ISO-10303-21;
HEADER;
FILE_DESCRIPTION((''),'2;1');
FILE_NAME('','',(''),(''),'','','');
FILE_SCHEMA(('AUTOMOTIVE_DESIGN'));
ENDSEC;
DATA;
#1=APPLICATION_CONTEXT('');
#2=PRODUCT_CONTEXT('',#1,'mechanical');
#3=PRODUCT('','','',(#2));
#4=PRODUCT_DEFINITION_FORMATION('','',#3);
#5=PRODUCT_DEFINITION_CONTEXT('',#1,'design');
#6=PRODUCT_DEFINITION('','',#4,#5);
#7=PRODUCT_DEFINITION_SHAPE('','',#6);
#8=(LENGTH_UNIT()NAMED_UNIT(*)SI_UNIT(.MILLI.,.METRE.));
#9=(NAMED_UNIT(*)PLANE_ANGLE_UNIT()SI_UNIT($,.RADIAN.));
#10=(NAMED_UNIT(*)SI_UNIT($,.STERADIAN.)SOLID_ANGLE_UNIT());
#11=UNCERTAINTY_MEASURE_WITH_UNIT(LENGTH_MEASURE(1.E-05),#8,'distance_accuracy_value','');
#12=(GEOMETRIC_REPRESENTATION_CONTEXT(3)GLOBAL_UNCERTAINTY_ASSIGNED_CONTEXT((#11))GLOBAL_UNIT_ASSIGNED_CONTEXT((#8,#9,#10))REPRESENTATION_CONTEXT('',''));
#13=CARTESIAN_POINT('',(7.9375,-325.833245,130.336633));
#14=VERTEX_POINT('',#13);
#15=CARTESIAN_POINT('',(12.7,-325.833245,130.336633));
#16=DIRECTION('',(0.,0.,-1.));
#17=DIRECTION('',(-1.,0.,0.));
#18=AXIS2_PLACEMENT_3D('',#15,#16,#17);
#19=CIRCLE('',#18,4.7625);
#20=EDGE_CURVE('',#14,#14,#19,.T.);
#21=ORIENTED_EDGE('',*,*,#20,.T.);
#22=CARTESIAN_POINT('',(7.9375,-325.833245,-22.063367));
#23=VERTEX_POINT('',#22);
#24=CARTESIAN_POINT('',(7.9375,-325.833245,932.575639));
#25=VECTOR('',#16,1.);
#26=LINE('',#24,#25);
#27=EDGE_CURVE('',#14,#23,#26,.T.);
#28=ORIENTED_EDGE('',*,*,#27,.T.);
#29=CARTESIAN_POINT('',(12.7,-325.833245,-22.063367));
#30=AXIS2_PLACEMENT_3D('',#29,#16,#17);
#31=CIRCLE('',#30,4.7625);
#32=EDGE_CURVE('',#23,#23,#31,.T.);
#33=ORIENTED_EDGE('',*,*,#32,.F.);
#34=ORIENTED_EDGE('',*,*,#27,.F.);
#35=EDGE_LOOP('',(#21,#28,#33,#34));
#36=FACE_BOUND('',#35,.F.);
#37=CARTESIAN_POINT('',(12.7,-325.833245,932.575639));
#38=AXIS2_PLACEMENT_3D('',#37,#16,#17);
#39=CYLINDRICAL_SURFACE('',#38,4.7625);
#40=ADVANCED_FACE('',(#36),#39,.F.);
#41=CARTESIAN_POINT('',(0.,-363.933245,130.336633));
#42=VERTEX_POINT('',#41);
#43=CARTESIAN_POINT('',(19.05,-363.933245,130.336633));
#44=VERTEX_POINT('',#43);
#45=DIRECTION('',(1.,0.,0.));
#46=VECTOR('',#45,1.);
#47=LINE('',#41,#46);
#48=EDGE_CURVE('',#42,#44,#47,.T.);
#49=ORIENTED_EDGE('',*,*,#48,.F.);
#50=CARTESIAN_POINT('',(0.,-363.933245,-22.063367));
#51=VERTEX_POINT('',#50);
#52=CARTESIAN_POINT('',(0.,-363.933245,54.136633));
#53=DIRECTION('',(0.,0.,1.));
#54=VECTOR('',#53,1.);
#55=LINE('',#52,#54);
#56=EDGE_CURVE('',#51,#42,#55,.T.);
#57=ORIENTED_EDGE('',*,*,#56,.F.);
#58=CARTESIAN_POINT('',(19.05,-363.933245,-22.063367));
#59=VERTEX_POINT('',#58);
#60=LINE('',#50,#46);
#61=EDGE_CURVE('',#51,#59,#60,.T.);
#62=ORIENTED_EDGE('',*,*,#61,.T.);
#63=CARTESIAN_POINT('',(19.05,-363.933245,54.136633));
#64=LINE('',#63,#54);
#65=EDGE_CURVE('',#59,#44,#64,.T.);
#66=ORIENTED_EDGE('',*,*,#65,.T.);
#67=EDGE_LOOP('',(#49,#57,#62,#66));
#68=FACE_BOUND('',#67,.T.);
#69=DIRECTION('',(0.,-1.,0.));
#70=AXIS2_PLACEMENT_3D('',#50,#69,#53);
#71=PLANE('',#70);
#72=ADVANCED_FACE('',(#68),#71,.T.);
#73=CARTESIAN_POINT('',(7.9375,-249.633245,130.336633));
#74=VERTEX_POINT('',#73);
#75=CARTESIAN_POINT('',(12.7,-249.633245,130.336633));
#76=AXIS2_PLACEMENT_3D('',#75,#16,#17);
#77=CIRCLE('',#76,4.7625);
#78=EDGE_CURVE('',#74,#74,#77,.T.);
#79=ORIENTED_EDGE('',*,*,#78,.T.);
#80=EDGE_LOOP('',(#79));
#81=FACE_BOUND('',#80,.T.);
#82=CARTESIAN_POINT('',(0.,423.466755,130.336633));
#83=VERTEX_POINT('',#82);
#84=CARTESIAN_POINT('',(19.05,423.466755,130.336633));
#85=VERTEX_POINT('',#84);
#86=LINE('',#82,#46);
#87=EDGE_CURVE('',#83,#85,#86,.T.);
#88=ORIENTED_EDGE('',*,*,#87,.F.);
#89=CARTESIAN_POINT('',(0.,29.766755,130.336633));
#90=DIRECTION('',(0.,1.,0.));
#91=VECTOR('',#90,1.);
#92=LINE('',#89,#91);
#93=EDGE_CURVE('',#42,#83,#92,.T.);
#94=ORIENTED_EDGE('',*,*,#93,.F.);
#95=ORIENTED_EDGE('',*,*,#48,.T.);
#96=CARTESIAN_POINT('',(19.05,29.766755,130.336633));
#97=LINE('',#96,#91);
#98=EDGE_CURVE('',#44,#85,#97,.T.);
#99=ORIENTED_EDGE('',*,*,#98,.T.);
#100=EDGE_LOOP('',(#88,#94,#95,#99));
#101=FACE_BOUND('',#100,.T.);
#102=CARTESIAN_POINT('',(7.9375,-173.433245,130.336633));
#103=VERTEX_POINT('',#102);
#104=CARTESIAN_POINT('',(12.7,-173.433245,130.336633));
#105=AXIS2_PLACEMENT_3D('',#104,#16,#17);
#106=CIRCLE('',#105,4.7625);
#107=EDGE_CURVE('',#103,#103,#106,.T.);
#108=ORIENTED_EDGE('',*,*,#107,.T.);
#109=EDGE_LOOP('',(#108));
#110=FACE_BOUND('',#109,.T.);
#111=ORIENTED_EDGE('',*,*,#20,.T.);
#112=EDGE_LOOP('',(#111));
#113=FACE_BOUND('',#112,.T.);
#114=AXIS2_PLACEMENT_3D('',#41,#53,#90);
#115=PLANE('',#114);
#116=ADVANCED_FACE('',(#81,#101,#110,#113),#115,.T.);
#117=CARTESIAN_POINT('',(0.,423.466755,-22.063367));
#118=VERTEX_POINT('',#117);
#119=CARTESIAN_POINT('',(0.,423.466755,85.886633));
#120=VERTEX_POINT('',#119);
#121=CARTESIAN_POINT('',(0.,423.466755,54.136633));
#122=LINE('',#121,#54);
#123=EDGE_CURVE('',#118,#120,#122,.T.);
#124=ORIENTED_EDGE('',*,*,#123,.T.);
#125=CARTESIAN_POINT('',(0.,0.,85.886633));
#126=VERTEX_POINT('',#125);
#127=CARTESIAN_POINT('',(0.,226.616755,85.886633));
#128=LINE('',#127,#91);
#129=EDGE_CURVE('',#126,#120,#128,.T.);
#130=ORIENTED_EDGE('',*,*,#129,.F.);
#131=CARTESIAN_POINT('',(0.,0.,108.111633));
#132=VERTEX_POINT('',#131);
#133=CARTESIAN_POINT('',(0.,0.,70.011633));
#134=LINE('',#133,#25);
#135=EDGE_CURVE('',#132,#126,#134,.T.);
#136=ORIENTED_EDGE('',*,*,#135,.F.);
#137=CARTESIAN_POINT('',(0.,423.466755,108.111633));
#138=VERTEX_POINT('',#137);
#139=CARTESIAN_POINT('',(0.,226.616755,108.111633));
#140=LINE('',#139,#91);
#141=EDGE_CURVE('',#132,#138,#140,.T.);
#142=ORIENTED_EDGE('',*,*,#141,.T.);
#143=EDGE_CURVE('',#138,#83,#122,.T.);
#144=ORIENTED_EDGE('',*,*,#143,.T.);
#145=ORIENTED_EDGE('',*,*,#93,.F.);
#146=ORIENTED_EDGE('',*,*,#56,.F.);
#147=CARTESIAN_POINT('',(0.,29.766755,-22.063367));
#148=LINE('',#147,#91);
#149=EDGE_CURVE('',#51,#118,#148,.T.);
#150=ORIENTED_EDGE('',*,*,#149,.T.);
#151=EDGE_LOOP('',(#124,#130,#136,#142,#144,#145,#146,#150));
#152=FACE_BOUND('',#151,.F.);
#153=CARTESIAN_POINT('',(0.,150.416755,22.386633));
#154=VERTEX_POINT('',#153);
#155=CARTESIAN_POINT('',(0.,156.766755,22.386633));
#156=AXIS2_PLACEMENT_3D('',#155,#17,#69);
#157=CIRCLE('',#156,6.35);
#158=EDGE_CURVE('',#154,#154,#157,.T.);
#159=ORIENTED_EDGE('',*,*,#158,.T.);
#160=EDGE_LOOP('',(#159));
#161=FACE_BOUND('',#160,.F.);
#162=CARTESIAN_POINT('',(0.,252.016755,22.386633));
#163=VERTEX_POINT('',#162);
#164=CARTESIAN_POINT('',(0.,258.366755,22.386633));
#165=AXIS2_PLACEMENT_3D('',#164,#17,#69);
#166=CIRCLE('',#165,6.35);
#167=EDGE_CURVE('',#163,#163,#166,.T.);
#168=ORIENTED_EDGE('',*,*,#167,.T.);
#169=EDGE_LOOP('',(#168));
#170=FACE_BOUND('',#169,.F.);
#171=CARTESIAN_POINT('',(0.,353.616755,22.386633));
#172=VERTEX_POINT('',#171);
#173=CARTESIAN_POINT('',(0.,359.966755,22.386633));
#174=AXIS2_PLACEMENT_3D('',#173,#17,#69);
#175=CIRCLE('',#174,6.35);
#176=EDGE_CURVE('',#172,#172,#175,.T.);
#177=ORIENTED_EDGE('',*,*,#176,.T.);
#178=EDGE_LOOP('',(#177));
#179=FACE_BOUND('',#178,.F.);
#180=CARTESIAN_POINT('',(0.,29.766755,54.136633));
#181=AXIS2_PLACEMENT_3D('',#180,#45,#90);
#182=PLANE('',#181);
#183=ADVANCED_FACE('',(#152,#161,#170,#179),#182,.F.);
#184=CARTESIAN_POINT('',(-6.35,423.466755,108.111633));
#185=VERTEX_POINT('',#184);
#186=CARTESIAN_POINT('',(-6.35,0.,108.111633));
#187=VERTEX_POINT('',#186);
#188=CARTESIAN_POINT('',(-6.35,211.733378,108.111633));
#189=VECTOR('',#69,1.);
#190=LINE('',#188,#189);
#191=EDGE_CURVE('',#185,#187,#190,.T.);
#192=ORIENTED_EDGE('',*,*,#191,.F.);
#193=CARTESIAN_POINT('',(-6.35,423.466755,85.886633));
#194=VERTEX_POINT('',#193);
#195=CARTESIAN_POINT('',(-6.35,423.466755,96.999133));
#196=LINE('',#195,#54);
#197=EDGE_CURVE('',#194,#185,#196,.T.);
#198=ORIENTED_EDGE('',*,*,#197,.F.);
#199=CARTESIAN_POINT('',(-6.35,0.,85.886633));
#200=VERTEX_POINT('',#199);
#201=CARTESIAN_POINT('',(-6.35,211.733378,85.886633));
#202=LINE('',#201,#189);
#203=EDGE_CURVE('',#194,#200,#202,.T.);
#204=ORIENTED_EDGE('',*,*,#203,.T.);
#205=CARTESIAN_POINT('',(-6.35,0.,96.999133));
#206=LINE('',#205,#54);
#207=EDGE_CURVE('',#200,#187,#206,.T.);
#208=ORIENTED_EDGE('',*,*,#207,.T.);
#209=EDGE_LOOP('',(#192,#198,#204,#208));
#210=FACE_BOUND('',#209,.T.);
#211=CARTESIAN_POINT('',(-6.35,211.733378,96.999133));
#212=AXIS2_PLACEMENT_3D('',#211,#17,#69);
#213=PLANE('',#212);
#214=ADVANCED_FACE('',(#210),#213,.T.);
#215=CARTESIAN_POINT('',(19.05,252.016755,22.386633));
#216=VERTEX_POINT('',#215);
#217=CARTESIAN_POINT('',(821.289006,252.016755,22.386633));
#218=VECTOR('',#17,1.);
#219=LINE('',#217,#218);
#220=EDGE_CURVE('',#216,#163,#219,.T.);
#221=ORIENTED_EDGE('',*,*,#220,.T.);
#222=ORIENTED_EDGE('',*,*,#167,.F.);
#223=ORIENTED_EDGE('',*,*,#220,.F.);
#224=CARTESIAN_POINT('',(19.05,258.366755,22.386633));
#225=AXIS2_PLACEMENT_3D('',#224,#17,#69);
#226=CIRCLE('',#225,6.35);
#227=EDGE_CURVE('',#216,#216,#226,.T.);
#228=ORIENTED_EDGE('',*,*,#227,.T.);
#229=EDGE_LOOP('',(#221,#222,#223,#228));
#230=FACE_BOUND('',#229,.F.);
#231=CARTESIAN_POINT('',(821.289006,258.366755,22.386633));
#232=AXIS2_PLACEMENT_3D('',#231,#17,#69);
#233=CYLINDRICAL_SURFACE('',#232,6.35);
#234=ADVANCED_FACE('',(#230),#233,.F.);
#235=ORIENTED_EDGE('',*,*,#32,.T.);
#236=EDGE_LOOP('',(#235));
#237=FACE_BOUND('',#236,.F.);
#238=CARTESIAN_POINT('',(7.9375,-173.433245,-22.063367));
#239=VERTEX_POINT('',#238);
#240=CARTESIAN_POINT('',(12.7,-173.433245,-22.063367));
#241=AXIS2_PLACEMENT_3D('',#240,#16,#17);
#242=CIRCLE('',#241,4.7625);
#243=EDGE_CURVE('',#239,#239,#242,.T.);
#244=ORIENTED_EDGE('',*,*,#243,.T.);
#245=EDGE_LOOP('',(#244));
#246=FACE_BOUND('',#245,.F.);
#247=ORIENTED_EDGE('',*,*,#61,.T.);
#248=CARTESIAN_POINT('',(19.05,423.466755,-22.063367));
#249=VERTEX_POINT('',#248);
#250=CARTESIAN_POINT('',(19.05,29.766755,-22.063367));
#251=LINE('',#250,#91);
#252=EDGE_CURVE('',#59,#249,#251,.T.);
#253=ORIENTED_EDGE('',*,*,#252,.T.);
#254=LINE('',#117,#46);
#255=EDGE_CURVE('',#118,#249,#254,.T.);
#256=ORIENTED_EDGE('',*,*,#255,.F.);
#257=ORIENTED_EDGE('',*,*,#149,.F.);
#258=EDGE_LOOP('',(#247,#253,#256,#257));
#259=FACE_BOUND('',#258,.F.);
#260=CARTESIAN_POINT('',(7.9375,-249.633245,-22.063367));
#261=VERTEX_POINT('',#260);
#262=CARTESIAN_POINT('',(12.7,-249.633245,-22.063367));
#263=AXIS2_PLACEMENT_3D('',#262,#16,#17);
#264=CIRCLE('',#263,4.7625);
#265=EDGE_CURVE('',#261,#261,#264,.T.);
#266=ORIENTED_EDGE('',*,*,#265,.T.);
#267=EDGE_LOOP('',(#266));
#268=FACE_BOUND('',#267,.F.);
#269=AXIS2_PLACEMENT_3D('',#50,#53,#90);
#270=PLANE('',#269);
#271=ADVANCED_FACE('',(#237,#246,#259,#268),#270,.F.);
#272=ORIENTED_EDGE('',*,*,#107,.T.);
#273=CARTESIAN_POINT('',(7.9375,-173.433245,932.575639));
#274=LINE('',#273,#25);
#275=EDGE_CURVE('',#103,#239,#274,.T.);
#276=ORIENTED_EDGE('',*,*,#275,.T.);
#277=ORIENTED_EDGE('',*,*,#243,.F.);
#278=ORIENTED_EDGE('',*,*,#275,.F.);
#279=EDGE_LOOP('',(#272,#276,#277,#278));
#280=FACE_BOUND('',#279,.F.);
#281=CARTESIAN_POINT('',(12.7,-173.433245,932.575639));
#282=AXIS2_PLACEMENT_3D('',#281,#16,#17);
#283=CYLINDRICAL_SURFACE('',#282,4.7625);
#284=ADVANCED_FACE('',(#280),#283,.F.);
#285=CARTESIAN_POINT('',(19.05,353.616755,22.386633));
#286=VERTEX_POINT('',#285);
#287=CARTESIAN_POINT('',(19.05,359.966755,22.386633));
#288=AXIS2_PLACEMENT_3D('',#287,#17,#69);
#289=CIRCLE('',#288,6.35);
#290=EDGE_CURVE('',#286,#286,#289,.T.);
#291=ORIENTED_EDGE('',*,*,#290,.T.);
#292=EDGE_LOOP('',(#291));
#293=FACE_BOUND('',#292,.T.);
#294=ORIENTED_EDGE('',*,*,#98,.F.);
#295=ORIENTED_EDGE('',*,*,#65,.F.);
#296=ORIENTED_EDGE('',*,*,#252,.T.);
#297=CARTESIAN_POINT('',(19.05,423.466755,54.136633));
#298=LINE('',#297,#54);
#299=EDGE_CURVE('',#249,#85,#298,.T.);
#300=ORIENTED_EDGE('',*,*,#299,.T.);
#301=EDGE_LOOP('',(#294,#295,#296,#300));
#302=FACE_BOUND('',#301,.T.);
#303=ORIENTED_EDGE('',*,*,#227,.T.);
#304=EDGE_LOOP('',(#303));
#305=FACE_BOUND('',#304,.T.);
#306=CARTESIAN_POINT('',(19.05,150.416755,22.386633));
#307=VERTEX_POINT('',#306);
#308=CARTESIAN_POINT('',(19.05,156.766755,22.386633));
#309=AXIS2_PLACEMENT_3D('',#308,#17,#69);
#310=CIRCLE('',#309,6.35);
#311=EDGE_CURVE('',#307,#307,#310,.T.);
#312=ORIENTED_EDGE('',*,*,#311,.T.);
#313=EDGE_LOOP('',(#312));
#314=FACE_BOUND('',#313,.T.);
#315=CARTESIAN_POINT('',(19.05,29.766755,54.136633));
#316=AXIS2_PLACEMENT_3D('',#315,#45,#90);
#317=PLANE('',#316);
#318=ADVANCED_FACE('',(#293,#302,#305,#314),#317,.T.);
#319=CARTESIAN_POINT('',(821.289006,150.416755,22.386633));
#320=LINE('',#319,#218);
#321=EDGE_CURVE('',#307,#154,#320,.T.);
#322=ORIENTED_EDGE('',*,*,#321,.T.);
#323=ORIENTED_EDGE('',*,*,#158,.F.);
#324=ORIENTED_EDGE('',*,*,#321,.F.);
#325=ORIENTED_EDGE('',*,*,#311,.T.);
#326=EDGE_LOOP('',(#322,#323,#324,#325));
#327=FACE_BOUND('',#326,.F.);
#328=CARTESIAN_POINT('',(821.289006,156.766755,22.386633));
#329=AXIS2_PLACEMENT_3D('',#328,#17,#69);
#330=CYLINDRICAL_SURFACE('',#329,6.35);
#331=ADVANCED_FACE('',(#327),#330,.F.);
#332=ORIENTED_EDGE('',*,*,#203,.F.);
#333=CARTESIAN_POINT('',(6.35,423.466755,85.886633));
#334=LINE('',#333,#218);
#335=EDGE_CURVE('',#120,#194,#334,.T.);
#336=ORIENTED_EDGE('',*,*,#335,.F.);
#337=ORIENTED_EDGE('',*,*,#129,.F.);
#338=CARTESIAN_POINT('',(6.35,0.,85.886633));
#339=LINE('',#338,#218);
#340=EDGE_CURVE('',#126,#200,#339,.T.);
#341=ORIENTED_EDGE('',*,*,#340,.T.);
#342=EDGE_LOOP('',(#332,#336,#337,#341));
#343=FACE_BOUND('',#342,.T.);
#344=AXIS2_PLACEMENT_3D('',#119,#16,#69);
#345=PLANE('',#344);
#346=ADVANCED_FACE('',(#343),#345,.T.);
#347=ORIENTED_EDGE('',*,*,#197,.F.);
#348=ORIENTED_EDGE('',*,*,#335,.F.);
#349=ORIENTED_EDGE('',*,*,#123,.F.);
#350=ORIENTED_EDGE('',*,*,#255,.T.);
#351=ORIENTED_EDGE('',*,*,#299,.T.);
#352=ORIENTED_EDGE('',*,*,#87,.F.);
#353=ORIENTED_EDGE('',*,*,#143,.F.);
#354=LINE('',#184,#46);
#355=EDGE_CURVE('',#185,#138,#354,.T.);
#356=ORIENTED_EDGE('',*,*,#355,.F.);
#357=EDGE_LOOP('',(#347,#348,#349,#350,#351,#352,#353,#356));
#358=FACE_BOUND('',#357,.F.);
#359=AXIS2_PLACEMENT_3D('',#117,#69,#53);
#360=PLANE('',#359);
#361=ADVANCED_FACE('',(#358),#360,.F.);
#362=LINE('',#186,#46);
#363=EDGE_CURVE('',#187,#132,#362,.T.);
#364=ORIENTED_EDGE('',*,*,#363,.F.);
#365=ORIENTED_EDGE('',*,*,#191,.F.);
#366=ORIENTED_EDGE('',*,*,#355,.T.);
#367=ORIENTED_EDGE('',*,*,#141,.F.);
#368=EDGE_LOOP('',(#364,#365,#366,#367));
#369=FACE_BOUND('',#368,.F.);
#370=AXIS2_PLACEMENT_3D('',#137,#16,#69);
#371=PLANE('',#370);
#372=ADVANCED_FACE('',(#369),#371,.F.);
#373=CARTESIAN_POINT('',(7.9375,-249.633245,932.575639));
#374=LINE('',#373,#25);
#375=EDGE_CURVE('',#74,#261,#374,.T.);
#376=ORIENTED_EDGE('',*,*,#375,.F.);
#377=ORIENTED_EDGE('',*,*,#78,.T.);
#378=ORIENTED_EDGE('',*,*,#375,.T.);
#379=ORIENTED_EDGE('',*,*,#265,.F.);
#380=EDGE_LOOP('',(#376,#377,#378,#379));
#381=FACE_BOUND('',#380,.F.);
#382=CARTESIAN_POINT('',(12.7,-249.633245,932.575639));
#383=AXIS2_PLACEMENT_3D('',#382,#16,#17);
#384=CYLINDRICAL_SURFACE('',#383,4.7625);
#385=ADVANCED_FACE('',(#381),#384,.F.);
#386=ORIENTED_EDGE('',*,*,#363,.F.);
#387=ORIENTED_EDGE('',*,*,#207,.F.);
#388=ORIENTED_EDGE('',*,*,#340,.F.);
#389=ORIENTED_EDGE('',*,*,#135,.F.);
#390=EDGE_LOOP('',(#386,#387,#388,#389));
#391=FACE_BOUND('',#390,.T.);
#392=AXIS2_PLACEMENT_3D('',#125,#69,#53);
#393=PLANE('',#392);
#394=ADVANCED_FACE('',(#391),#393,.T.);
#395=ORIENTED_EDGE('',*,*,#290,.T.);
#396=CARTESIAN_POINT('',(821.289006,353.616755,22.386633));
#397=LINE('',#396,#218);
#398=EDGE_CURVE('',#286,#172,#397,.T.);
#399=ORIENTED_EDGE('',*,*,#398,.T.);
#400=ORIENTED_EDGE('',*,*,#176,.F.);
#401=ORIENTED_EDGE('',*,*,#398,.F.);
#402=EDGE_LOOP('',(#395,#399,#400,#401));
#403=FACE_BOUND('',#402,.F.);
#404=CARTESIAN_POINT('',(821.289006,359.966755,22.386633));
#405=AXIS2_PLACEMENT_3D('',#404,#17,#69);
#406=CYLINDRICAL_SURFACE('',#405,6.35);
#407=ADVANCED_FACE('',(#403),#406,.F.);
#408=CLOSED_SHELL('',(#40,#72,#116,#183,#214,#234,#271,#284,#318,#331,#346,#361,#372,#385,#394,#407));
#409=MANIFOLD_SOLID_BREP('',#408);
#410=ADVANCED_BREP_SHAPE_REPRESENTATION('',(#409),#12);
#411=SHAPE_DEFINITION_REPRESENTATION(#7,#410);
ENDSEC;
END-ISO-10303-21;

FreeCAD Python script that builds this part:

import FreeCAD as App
import Part
import Sketcher
from FreeCAD import Vector
Q = App.Units.Quantity

doc = App.newDocument("Part")
body = doc.addObject("PartDesign::Body", "Body")

# Sketch on YZ plane
sketch1 = body.newObject("Sketcher::SketchObject", "Sketch")
sketch1.AttachmentSupport = (doc.getObject("YZ_Plane"), [""])
sketch1.MapMode = "FlatFace"
sketch1.addGeometry([
    Part.LineSegment(Vector(-363.933245, 130.336633, 0), Vector(-363.933245, -22.063367, 0)),
    Part.LineSegment(Vector(-363.933245, -22.063367, 0), Vector(423.466755, -22.063367, 0)),
    Part.LineSegment(Vector(423.466755, -22.063367, 0), Vector(423.466755, 130.336633, 0)),
    Part.LineSegment(Vector(423.466755, 130.336633, 0), Vector(-363.933245, 130.336633, 0)),
], False)
sketch1.addConstraint([
    Sketcher.Constraint("Coincident", 0, 2, 1, 1),
    Sketcher.Constraint("Coincident", 1, 2, 2, 1),
    Sketcher.Constraint("Coincident", 2, 2, 3, 1),
    Sketcher.Constraint("Coincident", 3, 2, 0, 1),
    Sketcher.Constraint("Vertical", 0),
    Sketcher.Constraint("Horizontal", 1),
    Sketcher.Constraint("Vertical", 2),
    Sketcher.Constraint("Horizontal", 3),
    Sketcher.Constraint("DistanceX", 1, 1, 1, 2, Q("31 in")),
    Sketcher.Constraint("DistanceY", 0, 2, 0, 1, Q("6 in")),
    Sketcher.Constraint("DistanceX", 0, 2, -1, 1, 363.933245),
    Sketcher.Constraint("DistanceY", 0, 2, -1, 1, 22.063367),
])
pad1 = body.newObject("PartDesign::Pad", "Pad")
pad1.Profile = sketch1
pad1.Length = Q("0.75 in")

# Sketch on YZ plane
sketch2 = body.newObject("Sketcher::SketchObject", "Sketch001")
sketch2.AttachmentSupport = (doc.getObject("YZ_Plane"), [""])
sketch2.MapMode = "FlatFace"
sketch2.AttachmentOffset = App.Placement(Vector(0, 0, 0.75 * 25.4), App.Rotation())
sketch2.addGeometry([
    Part.Circle(Vector(156.766755, 22.386633, 0), Vector(0, 0, 1), 6.35),
    Part.Circle(Vector(258.366755, 22.386633, 0), Vector(0, 0, 1), 6.35),
    Part.Circle(Vector(359.966755, 22.386633, 0), Vector(0, 0, 1), 6.35),
], False)
sketch2.addConstraint([
    Sketcher.Constraint("Equal", 0, 1),
    Sketcher.Constraint("Equal", 1, 2),
    Sketcher.Constraint("Horizontal", 0, 3, 1, 3),
    Sketcher.Constraint("Horizontal", 1, 3, 2, 3),
    Sketcher.Constraint("Diameter", 0, Q("0.5 in")),
    Sketcher.Constraint("DistanceX", 0, 3, 1, 3, Q("4 in")),
    Sketcher.Constraint("DistanceX", 1, 3, 2, 3, Q("4 in")),
    Sketcher.Constraint("DistanceX", -1, 1, 0, 3, 156.766755),
    Sketcher.Constraint("DistanceY", -1, 1, 0, 3, 22.386633),
])
doc.recompute()
hole = body.newObject("PartDesign::Hole", "Hole")
hole.Profile = sketch2
hole.ThreadType = "None"
hole.Diameter = Q("0.5 in")
hole.DepthType = "ThroughAll"

# Sketch on XY plane
sketch3 = body.newObject("Sketcher::SketchObject", "Sketch002")
sketch3.AttachmentSupport = (doc.getObject("XY_Plane"), [""])
sketch3.MapMode = "FlatFace"
sketch3.AttachmentOffset = App.Placement(Vector(0, 0, 130.336633), App.Rotation())
sketch3.addGeometry([
    Part.Circle(Vector(12.7, -173.433245, 0), Vector(0, 0, 1), 4.7625),
    Part.Circle(Vector(12.7, -249.633245, 0), Vector(0, 0, 1), 4.7625),
    Part.Circle(Vector(12.7, -325.833245, 0), Vector(0, 0, 1), 4.7625),
], False)
sketch3.addConstraint([
    Sketcher.Constraint("Equal", 0, 1),
    Sketcher.Constraint("Equal", 1, 2),
    Sketcher.Constraint("Vertical", 0, 3, 1, 3),
    Sketcher.Constraint("Vertical", 1, 3, 2, 3),
    Sketcher.Constraint("Diameter", 0, Q("0.375 in")),
    Sketcher.Constraint("DistanceY", 1, 3, 0, 3, Q("3 in")),
    Sketcher.Constraint("DistanceY", 2, 3, 1, 3, Q("3 in")),
    Sketcher.Constraint("DistanceX", -1, 1, 0, 3, Q("0.5 in")),
    Sketcher.Constraint("DistanceY", 0, 3, -1, 1, 173.433245),
])
doc.recompute()
hole2 = body.newObject("PartDesign::Hole", "Hole001")
hole2.Profile = sketch3
hole2.ThreadType = "None"
hole2.Diameter = Q("0.375 in")
hole2.DepthType = "ThroughAll"

# Sketch on YZ plane
sketch4 = body.newObject("Sketcher::SketchObject", "Sketch003")
sketch4.AttachmentSupport = (doc.getObject("YZ_Plane"), [""])
sketch4.MapMode = "FlatFace"
sketch4.addGeometry([
    Part.LineSegment(Vector(423.466755, 108.111633, 0), Vector(423.466755, 85.886633, 0)),
    Part.LineSegment(Vector(423.466755, 85.886633, 0), Vector(0, 85.886633, 0)),
    Part.LineSegment(Vector(0, 85.886633, 0), Vector(0, 108.111633, 0)),
    Part.LineSegment(Vector(0, 108.111633, 0), Vector(423.466755, 108.111633, 0)),
], False)
sketch4.addConstraint([
    Sketcher.Constraint("Coincident", 0, 2, 1, 1),
    Sketcher.Constraint("Coincident", 1, 2, 2, 1),
    Sketcher.Constraint("Coincident", 2, 2, 3, 1),
    Sketcher.Constraint("Coincident", 3, 2, 0, 1),
    Sketcher.Constraint("Vertical", 0),
    Sketcher.Constraint("Horizontal", 1),
    Sketcher.Constraint("Vertical", 2),
    Sketcher.Constraint("Horizontal", 3),
    Sketcher.Constraint("PointOnObject", 1, 2, -2),
    Sketcher.Constraint("DistanceY", 0, 2, 0, 1, Q("0.875 in")),
    Sketcher.Constraint("DistanceX", 1, 2, 1, 1, 423.466755),
    Sketcher.Constraint("DistanceY", -1, 1, 0, 2, 85.886633),
])
pad2 = body.newObject("PartDesign::Pad", "Pad001")
pad2.Profile = sketch4
pad2.Length = Q("0.5 in")
pad2.Midplane = True

doc.recompute()
